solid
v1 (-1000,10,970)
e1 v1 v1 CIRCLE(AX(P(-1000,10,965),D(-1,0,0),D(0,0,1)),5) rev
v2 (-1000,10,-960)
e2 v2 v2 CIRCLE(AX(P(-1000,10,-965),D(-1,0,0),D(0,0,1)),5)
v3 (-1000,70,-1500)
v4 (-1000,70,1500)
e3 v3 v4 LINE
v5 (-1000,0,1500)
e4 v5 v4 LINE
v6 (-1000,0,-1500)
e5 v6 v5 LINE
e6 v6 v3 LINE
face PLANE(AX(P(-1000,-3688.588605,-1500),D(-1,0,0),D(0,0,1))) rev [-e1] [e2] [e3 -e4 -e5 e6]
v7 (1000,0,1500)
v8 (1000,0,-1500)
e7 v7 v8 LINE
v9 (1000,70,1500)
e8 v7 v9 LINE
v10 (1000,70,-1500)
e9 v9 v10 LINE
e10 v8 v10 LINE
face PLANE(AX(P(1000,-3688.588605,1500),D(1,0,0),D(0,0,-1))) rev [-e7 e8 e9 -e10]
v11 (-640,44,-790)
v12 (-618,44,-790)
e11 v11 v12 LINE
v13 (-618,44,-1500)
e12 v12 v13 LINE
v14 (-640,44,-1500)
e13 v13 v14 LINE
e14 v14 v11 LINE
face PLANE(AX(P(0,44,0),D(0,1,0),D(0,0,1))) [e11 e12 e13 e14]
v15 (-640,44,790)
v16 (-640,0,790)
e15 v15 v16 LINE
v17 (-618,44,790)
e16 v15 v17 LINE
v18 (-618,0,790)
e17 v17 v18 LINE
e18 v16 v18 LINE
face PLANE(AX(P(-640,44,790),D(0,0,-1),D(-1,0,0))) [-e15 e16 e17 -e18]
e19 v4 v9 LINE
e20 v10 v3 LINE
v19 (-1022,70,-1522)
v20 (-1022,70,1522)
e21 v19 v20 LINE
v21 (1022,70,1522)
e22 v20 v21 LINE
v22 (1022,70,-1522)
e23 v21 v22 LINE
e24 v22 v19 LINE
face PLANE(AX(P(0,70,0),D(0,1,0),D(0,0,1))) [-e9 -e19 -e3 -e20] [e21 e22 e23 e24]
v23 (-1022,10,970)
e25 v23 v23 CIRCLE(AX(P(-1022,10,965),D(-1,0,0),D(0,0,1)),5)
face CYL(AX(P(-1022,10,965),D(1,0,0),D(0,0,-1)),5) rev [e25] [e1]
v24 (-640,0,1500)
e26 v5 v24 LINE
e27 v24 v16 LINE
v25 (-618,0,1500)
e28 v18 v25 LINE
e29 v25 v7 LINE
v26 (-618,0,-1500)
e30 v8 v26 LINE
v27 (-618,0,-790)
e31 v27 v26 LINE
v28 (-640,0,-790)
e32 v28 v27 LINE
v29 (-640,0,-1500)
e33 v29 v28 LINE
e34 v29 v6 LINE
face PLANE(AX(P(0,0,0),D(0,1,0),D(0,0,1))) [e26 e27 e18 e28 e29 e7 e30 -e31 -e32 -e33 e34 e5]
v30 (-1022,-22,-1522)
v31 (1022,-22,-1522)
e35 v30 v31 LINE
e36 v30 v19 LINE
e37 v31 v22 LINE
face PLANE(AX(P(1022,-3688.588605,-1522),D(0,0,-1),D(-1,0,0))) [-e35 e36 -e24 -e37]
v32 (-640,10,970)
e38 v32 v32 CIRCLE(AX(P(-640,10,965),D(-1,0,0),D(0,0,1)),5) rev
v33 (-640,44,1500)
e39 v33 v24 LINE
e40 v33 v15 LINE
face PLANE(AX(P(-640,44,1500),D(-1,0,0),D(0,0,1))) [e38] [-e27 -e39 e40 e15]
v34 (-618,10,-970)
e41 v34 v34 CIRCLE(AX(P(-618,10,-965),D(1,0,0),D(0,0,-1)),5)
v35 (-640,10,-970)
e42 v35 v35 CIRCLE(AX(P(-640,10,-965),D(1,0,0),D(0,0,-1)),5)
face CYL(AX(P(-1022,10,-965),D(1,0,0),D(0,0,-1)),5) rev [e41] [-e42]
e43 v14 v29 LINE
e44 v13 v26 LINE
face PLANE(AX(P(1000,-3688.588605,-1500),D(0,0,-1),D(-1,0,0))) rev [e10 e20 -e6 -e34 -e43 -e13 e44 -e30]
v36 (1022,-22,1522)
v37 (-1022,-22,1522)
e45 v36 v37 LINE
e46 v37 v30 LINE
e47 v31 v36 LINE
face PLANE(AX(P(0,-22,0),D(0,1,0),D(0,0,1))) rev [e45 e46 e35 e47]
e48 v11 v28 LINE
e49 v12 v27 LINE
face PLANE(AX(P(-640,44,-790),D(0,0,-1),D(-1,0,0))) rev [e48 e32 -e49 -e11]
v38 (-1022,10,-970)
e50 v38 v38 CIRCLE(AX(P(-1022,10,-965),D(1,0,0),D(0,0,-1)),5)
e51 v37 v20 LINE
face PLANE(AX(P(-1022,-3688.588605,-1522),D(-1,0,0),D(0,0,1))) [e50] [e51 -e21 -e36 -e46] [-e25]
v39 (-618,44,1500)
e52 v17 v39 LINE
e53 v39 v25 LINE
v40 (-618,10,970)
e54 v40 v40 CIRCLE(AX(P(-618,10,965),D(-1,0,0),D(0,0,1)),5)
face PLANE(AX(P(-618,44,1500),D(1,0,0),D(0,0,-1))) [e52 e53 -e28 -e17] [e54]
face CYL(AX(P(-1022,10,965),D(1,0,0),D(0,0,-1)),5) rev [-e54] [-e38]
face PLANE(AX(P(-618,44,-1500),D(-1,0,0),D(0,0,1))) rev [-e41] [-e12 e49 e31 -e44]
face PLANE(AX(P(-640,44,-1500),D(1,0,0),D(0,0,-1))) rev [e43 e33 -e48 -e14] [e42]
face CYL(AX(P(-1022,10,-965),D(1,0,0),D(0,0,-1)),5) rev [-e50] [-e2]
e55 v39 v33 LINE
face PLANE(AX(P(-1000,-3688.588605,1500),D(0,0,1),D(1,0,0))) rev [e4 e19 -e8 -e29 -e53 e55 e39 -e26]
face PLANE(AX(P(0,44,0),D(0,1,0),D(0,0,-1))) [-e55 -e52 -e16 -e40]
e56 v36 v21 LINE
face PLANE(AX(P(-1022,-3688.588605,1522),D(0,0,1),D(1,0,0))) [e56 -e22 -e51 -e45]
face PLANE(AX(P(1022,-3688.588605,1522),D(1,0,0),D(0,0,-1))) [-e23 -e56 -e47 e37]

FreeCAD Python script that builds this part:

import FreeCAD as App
import Part
import Sketcher

V = App.Vector
Q = App.Units.Quantity


def add_polygon(sketch, points):
    """Adds a closed chain of lines whose ends are joined by coincident constraints."""
    first, n = sketch.GeometryCount, len(points)
    for a, b in zip(points, points[1:] + points[:1]):
        sketch.addGeometry(Part.LineSegment(App.Vector(*a, 0), App.Vector(*b, 0)), False)
    for i in range(n):
        sketch.addConstraint(Sketcher.Constraint("Coincident", first + i, 2, first + (i + 1) % n, 1))

doc = App.newDocument("Part")
params = doc.addObject("Spreadsheet::Sheet", "Params")
for row, (alias, value) in enumerate([
    ("sketch1_width", "2000 mm"),
    ("sketch1_height", "3000 mm"),
    ("pad1_length", "22 mm"),
    ("sketch2_width", "2044 mm"),
    ("sketch2_width2", "2000 mm"),
    ("sketch2_height", "3044 mm"),
    ("sketch2_height2", "3000 mm"),
    ("pad2_length", "70 mm"),
    ("pad2_length2", "22 mm"),
    ("sketch3_width", "22 mm"),
    ("sketch3_height", "710 mm"),
    ("pad3_length", "44 mm"),
    ("sketch4_diameter", "10 mm"),
], start=1):
    params.set(f"A{row}", alias)
    params.set(f"B{row}", "=" + value)
    params.setAlias(f"B{row}", alias)

body = doc.addObject("PartDesign::Body", "Body")

# Sketch on XZ plane
sketch1 = doc.addObject("Sketcher::SketchObject", "Sketch")
body.addObject(sketch1)
sketch1.AttachmentSupport = (doc.XZ_Plane, [""])
sketch1.MapMode = "FlatFace"
add_polygon(sketch1, [(-1000, -1500), (-1000, 1500), (1000, 1500), (1000, -1500)])  # lines 0-3
sketch1.addConstraint([
    Sketcher.Constraint("Vertical", 0),
    Sketcher.Constraint("Horizontal", 1),
    Sketcher.Constraint("Vertical", 2),
    Sketcher.Constraint("Horizontal", 3),
    Sketcher.Constraint("Symmetric", 0, 2, 2, 2, -1, 1),
    Sketcher.Constraint("DistanceX", 1, 1, 1, 2, Q("2000 mm")),
    Sketcher.Constraint("DistanceY", 0, 1, 0, 2, Q("3000 mm")),
])
sketch1.setExpression("Constraints[9]", "Params.sketch1_width")
sketch1.setExpression("Constraints[10]", "Params.sketch1_height")
pad1 = doc.addObject("PartDesign::Pad", "Pad")
body.addObject(pad1)
pad1.Profile = sketch1
pad1.setExpression("Length", "Params.pad1_length")

# Sketch on XZ plane
sketch2 = doc.addObject("Sketcher::SketchObject", "Sketch001")
body.addObject(sketch2)
sketch2.AttachmentSupport = (doc.XZ_Plane, [""])
sketch2.MapMode = "FlatFace"
add_polygon(sketch2, [(-1022, -1522), (-1022, 1522), (1022, 1522), (1022, -1522)])  # lines 0-3
add_polygon(sketch2, [(1000, 1500), (-1000, 1500), (-1000, -1500), (1000, -1500)])  # lines 4-7
sketch2.addConstraint([
    Sketcher.Constraint("Vertical", 0),
    Sketcher.Constraint("Horizontal", 1),
    Sketcher.Constraint("Vertical", 2),
    Sketcher.Constraint("Horizontal", 3),
    Sketcher.Constraint("Horizontal", 4),
    Sketcher.Constraint("Vertical", 5),
    Sketcher.Constraint("Horizontal", 6),
    Sketcher.Constraint("Vertical", 7),
    Sketcher.Constraint("Symmetric", 0, 2, 2, 2, -1, 1),
    Sketcher.Constraint("Symmetric", 4, 2, 6, 2, -1, 1),
    Sketcher.Constraint("DistanceX", 1, 1, 1, 2, Q("2044 mm")),
    Sketcher.Constraint("DistanceX", 4, 2, 4, 1, Q("2000 mm")),
    Sketcher.Constraint("DistanceY", 0, 1, 0, 2, Q("3044 mm")),
    Sketcher.Constraint("DistanceY", 5, 2, 5, 1, Q("3000 mm")),
])
sketch2.setExpression("Constraints[18]", "Params.sketch2_width")
sketch2.setExpression("Constraints[19]", "Params.sketch2_width2")
sketch2.setExpression("Constraints[20]", "Params.sketch2_height")
sketch2.setExpression("Constraints[21]", "Params.sketch2_height2")
pad2 = doc.addObject("PartDesign::Pad", "Pad001")
body.addObject(pad2)
pad2.Profile = sketch2
pad2.Type = "TwoLengths"
pad2.setExpression("Length", "Params.pad2_length")
pad2.setExpression("Length2", "Params.pad2_length2")
pad2.Reversed = True

# Sketch on XZ plane
sketch3 = doc.addObject("Sketcher::SketchObject", "Sketch002")
body.addObject(sketch3)
sketch3.AttachmentSupport = (doc.XZ_Plane, [""])
sketch3.MapMode = "FlatFace"
add_polygon(sketch3, [(-640, -1500), (-640, -790), (-618, -790), (-618, -1500)])  # lines 0-3
sketch3.addConstraint([
    Sketcher.Constraint("Vertical", 0),
    Sketcher.Constraint("Horizontal", 1),
    Sketcher.Constraint("Vertical", 2),
    Sketcher.Constraint("Horizontal", 3),
    Sketcher.Constraint("DistanceX", 1, 1, 1, 2, Q("22 mm")),
    Sketcher.Constraint("DistanceY", 0, 1, 0, 2, Q("710 mm")),
    Sketcher.Constraint("DistanceX", 0, 2, -1, 1, Q("640 mm")),
    Sketcher.Constraint("DistanceY", 0, 2, -1, 1, Q("790 mm")),
])
sketch3.setExpression("Constraints[8]", "Params.sketch3_width")
sketch3.setExpression("Constraints[9]", "Params.sketch3_height")
pad3 = doc.addObject("PartDesign::Pad", "Pad002")
body.addObject(pad3)
pad3.Profile = sketch3
pad3.setExpression("Length", "Params.pad3_length")
pad3.Reversed = True

# Sketch on YZ plane
sketch4 = doc.addObject("Sketcher::SketchObject", "Sketch003")
body.addObject(sketch4)
sketch4.AttachmentSupport = (doc.YZ_Plane, [""])
sketch4.MapMode = "FlatFace"
sketch4.AttachmentOffset = App.Placement(V(0, 0, -618), App.Rotation())
sketch4.addGeometry(Part.Circle(V(10, -965, 0), V(0, 0, 1), 5), False)
sketch4.addConstraint([
    Sketcher.Constraint("Diameter", 0, Q("10 mm")),
    Sketcher.Constraint("DistanceX", -1, 1, 0, 3, Q("10 mm")),
    Sketcher.Constraint("DistanceY", 0, 3, -1, 1, Q("965 mm")),
])
sketch4.setExpression("Constraints[0]", "Params.sketch4_diameter")
pocket1 = doc.addObject("PartDesign::Pocket", "Pocket")
body.addObject(pocket1)
pocket1.Profile = sketch4
pocket1.Type = "ThroughAll"
doc.recompute()

mirrored = doc.addObject("PartDesign::Mirrored", "Mirrored")
body.addObject(mirrored)
mirrored.Originals = [pad3, pocket1]
mirrored.MirrorPlane = (doc.XY_Plane, [""])
body.Tip = mirrored

doc.recompute()
